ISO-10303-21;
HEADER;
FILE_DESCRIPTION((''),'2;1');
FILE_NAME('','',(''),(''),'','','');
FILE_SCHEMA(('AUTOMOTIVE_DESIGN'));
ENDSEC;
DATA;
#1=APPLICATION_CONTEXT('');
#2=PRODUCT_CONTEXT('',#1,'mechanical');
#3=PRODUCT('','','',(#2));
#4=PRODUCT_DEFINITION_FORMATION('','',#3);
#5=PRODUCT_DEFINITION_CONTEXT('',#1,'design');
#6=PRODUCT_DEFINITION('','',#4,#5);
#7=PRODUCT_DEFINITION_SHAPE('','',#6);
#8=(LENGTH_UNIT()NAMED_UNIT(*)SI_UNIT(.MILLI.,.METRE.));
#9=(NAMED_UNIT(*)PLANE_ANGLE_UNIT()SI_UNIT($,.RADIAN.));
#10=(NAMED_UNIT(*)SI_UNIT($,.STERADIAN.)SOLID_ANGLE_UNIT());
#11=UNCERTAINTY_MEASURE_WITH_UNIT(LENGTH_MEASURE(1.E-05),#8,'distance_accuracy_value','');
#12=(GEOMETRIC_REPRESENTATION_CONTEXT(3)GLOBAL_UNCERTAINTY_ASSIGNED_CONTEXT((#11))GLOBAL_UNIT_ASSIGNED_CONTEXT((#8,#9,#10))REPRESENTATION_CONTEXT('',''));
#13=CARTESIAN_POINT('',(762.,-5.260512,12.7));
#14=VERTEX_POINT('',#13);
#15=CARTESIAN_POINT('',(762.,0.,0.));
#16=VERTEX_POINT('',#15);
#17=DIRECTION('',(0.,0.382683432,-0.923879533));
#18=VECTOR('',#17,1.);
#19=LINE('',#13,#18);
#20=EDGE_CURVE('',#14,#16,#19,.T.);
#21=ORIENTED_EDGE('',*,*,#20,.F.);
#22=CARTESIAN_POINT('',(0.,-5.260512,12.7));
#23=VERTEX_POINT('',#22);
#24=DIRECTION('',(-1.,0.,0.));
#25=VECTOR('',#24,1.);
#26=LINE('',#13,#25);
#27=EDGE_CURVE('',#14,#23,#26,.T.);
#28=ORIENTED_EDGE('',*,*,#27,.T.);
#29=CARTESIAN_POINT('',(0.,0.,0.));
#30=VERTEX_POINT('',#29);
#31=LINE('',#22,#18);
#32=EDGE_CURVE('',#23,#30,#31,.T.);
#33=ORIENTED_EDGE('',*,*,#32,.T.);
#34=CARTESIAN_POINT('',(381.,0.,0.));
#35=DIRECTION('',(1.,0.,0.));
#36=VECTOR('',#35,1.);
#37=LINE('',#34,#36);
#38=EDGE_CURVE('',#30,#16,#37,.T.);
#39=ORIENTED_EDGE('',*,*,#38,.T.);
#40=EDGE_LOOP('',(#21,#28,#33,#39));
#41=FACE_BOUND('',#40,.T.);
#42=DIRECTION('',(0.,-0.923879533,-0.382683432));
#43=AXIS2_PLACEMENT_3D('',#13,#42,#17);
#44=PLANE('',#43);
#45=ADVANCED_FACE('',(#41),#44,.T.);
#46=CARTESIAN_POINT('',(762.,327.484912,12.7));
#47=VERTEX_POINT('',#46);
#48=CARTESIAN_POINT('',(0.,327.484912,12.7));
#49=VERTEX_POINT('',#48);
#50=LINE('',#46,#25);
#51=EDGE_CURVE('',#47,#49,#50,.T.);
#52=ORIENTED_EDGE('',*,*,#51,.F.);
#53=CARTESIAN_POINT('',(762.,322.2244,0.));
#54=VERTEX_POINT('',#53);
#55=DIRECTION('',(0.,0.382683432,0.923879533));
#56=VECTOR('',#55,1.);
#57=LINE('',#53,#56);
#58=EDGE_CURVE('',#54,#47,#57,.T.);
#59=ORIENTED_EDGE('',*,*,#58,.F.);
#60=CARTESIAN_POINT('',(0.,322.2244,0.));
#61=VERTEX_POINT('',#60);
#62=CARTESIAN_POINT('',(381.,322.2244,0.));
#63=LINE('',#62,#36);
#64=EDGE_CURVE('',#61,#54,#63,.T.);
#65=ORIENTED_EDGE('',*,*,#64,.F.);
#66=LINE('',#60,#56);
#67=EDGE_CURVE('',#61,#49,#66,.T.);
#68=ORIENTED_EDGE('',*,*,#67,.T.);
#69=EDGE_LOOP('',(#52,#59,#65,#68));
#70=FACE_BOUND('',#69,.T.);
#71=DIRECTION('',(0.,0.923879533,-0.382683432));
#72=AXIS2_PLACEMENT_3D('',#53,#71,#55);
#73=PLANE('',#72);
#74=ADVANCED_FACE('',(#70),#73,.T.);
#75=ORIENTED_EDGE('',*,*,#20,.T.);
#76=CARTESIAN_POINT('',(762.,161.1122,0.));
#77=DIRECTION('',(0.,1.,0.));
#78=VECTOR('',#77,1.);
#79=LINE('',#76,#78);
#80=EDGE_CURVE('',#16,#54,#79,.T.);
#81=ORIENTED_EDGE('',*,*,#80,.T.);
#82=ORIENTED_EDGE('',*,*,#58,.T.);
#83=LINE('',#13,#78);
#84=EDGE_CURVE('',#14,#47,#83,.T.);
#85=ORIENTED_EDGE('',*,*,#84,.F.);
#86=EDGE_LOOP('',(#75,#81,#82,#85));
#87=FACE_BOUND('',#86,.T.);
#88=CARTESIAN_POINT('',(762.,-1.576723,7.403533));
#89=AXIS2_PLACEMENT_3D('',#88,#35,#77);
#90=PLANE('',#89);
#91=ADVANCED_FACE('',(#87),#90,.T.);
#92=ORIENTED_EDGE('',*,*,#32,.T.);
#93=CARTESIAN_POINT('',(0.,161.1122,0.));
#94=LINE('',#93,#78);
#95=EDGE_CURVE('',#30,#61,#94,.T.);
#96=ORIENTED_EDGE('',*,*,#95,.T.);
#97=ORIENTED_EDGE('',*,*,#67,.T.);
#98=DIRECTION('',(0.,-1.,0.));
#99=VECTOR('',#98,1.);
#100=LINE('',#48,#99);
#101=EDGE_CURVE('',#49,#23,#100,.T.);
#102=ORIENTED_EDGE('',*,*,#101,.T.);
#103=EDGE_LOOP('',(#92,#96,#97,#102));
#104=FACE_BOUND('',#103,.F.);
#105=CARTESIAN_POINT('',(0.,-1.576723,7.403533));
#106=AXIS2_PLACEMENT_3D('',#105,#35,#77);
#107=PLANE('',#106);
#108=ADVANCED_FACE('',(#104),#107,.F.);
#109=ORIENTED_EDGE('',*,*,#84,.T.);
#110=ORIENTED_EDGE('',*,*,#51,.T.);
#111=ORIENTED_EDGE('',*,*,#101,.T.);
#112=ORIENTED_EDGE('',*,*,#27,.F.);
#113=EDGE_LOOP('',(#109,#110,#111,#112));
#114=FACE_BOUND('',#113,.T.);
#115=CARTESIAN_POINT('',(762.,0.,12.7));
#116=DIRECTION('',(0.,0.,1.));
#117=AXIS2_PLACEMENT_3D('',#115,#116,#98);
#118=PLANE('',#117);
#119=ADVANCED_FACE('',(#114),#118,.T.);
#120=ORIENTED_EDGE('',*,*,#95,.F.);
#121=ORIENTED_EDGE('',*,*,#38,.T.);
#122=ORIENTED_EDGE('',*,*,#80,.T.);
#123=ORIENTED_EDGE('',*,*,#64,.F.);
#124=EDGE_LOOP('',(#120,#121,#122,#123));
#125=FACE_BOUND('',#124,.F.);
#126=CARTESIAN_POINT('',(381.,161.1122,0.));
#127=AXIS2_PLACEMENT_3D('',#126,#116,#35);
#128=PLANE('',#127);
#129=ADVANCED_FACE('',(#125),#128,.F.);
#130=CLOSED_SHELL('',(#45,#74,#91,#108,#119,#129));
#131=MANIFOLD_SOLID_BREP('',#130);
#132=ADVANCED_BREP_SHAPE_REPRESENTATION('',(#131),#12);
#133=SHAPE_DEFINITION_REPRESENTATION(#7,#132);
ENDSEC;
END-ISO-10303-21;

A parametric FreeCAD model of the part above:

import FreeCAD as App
import Part
import Sketcher
from FreeCAD import Vector
Q = App.Units.Quantity

doc = App.newDocument("Part")
params = doc.addObject("Spreadsheet::Sheet", "Params")
for row, (alias, value) in enumerate([
    ("sketch1_width", "30 in"),
    ("sketch1_height", "12.686 in"),
    ("pad1_length", "0.5 in"),
    ("sketch2_height", "0.5 in"),
], start=1):
    params.set(f"A{row}", alias)
    params.set(f"B{row}", "=" + value)
    params.setAlias(f"B{row}", alias)

body = doc.addObject("PartDesign::Body", "Body")

# Sketch on XY plane
sketch1 = body.newObject("Sketcher::SketchObject", "Sketch")
sketch1.AttachmentSupport = (doc.getObject("XY_Plane"), [""])
sketch1.MapMode = "FlatFace"
sketch1.addGeometry([
    Part.LineSegment(Vector(0, 322.2244, 0), Vector(0, 0, 0)),
    Part.LineSegment(Vector(0, 0, 0), Vector(762, 0, 0)),
    Part.LineSegment(Vector(762, 0, 0), Vector(762, 322.2244, 0)),
    Part.LineSegment(Vector(762, 322.2244, 0), Vector(0, 322.2244, 0)),
], False)
sketch1.addConstraint([
    Sketcher.Constraint("Coincident", 0, 2, 1, 1),
    Sketcher.Constraint("Coincident", 1, 2, 2, 1),
    Sketcher.Constraint("Coincident", 2, 2, 3, 1),
    Sketcher.Constraint("Coincident", 3, 2, 0, 1),
    Sketcher.Constraint("Vertical", 0),
    Sketcher.Constraint("Horizontal", 1),
    Sketcher.Constraint("Vertical", 2),
    Sketcher.Constraint("Horizontal", 3),
    Sketcher.Constraint("Coincident", 0, 2, -1, 1),
    Sketcher.Constraint("DistanceX", 1, 1, 1, 2, Q("30 in")),
    Sketcher.Constraint("DistanceY", 0, 2, 0, 1, Q("12.686 in")),
])
sketch1.setExpression("Constraints[9]", "Params.sketch1_width")
sketch1.setExpression("Constraints[10]", "Params.sketch1_height")
pad1 = body.newObject("PartDesign::Pad", "Pad")
pad1.Profile = sketch1
pad1.setExpression("Length", "Params.pad1_length")

# Sketch on YZ plane
sketch2 = body.newObject("Sketcher::SketchObject", "Sketch001")
sketch2.AttachmentSupport = (doc.getObject("YZ_Plane"), [""])
sketch2.MapMode = "FlatFace"
sketch2.AttachmentOffset = App.Placement(Vector(0, 0, 30 * 25.4), App.Rotation())
sketch2.addGeometry([
    Part.LineSegment(Vector(-5.260512, 12.7, 0), Vector(0, 0, 0)),  # 0
    Part.LineSegment(Vector(0, 0, 0), Vector(0, 12.7, 0)),  # 1
    Part.LineSegment(Vector(0, 12.7, 0), Vector(-5.260512, 12.7, 0)),  # 2
    Part.LineSegment(Vector(322.2244, 12.7, 0), Vector(322.2244, 0, 0)),  # 3
    Part.LineSegment(Vector(322.2244, 0, 0), Vector(327.484912, 12.7, 0)),  # 4
    Part.LineSegment(Vector(327.484912, 12.7, 0), Vector(322.2244, 12.7, 0)),  # 5
], False)
sketch2.addConstraint([
    Sketcher.Constraint("Coincident", 0, 2, 1, 1),
    Sketcher.Constraint("Coincident", 1, 2, 2, 1),
    Sketcher.Constraint("Coincident", 2, 2, 0, 1),
    Sketcher.Constraint("Coincident", 3, 2, 4, 1),
    Sketcher.Constraint("Coincident", 4, 2, 5, 1),
    Sketcher.Constraint("Coincident", 5, 2, 3, 1),
    Sketcher.Constraint("Vertical", 1),
    Sketcher.Constraint("Horizontal", 2),
    Sketcher.Constraint("Vertical", 3),
    Sketcher.Constraint("Horizontal", 5),
    Sketcher.Constraint("Coincident", 0, 2, -1, 1),
    Sketcher.Constraint("PointOnObject", 3, 2, -1),
    Sketcher.Constraint("Horizontal", 2, 2, 4, 2),
    Sketcher.Constraint("Equal", 2, 5),
    Sketcher.Constraint("DistanceY", 1, 1, 1, 2, Q("0.5 in")),
    Sketcher.Constraint("Angle", 0, Q("-67.5 deg")),
    Sketcher.Constraint("DistanceX", -1, 1, 3, 2, Q("12.686 in")),
])
sketch2.setExpression("Constraints[14]", "Params.sketch2_height")
pad2 = body.newObject("PartDesign::Pad", "Pad001")
pad2.Profile = sketch2
pad2.Type = "UpToLast"
pad2.Reversed = True

doc.recompute()
